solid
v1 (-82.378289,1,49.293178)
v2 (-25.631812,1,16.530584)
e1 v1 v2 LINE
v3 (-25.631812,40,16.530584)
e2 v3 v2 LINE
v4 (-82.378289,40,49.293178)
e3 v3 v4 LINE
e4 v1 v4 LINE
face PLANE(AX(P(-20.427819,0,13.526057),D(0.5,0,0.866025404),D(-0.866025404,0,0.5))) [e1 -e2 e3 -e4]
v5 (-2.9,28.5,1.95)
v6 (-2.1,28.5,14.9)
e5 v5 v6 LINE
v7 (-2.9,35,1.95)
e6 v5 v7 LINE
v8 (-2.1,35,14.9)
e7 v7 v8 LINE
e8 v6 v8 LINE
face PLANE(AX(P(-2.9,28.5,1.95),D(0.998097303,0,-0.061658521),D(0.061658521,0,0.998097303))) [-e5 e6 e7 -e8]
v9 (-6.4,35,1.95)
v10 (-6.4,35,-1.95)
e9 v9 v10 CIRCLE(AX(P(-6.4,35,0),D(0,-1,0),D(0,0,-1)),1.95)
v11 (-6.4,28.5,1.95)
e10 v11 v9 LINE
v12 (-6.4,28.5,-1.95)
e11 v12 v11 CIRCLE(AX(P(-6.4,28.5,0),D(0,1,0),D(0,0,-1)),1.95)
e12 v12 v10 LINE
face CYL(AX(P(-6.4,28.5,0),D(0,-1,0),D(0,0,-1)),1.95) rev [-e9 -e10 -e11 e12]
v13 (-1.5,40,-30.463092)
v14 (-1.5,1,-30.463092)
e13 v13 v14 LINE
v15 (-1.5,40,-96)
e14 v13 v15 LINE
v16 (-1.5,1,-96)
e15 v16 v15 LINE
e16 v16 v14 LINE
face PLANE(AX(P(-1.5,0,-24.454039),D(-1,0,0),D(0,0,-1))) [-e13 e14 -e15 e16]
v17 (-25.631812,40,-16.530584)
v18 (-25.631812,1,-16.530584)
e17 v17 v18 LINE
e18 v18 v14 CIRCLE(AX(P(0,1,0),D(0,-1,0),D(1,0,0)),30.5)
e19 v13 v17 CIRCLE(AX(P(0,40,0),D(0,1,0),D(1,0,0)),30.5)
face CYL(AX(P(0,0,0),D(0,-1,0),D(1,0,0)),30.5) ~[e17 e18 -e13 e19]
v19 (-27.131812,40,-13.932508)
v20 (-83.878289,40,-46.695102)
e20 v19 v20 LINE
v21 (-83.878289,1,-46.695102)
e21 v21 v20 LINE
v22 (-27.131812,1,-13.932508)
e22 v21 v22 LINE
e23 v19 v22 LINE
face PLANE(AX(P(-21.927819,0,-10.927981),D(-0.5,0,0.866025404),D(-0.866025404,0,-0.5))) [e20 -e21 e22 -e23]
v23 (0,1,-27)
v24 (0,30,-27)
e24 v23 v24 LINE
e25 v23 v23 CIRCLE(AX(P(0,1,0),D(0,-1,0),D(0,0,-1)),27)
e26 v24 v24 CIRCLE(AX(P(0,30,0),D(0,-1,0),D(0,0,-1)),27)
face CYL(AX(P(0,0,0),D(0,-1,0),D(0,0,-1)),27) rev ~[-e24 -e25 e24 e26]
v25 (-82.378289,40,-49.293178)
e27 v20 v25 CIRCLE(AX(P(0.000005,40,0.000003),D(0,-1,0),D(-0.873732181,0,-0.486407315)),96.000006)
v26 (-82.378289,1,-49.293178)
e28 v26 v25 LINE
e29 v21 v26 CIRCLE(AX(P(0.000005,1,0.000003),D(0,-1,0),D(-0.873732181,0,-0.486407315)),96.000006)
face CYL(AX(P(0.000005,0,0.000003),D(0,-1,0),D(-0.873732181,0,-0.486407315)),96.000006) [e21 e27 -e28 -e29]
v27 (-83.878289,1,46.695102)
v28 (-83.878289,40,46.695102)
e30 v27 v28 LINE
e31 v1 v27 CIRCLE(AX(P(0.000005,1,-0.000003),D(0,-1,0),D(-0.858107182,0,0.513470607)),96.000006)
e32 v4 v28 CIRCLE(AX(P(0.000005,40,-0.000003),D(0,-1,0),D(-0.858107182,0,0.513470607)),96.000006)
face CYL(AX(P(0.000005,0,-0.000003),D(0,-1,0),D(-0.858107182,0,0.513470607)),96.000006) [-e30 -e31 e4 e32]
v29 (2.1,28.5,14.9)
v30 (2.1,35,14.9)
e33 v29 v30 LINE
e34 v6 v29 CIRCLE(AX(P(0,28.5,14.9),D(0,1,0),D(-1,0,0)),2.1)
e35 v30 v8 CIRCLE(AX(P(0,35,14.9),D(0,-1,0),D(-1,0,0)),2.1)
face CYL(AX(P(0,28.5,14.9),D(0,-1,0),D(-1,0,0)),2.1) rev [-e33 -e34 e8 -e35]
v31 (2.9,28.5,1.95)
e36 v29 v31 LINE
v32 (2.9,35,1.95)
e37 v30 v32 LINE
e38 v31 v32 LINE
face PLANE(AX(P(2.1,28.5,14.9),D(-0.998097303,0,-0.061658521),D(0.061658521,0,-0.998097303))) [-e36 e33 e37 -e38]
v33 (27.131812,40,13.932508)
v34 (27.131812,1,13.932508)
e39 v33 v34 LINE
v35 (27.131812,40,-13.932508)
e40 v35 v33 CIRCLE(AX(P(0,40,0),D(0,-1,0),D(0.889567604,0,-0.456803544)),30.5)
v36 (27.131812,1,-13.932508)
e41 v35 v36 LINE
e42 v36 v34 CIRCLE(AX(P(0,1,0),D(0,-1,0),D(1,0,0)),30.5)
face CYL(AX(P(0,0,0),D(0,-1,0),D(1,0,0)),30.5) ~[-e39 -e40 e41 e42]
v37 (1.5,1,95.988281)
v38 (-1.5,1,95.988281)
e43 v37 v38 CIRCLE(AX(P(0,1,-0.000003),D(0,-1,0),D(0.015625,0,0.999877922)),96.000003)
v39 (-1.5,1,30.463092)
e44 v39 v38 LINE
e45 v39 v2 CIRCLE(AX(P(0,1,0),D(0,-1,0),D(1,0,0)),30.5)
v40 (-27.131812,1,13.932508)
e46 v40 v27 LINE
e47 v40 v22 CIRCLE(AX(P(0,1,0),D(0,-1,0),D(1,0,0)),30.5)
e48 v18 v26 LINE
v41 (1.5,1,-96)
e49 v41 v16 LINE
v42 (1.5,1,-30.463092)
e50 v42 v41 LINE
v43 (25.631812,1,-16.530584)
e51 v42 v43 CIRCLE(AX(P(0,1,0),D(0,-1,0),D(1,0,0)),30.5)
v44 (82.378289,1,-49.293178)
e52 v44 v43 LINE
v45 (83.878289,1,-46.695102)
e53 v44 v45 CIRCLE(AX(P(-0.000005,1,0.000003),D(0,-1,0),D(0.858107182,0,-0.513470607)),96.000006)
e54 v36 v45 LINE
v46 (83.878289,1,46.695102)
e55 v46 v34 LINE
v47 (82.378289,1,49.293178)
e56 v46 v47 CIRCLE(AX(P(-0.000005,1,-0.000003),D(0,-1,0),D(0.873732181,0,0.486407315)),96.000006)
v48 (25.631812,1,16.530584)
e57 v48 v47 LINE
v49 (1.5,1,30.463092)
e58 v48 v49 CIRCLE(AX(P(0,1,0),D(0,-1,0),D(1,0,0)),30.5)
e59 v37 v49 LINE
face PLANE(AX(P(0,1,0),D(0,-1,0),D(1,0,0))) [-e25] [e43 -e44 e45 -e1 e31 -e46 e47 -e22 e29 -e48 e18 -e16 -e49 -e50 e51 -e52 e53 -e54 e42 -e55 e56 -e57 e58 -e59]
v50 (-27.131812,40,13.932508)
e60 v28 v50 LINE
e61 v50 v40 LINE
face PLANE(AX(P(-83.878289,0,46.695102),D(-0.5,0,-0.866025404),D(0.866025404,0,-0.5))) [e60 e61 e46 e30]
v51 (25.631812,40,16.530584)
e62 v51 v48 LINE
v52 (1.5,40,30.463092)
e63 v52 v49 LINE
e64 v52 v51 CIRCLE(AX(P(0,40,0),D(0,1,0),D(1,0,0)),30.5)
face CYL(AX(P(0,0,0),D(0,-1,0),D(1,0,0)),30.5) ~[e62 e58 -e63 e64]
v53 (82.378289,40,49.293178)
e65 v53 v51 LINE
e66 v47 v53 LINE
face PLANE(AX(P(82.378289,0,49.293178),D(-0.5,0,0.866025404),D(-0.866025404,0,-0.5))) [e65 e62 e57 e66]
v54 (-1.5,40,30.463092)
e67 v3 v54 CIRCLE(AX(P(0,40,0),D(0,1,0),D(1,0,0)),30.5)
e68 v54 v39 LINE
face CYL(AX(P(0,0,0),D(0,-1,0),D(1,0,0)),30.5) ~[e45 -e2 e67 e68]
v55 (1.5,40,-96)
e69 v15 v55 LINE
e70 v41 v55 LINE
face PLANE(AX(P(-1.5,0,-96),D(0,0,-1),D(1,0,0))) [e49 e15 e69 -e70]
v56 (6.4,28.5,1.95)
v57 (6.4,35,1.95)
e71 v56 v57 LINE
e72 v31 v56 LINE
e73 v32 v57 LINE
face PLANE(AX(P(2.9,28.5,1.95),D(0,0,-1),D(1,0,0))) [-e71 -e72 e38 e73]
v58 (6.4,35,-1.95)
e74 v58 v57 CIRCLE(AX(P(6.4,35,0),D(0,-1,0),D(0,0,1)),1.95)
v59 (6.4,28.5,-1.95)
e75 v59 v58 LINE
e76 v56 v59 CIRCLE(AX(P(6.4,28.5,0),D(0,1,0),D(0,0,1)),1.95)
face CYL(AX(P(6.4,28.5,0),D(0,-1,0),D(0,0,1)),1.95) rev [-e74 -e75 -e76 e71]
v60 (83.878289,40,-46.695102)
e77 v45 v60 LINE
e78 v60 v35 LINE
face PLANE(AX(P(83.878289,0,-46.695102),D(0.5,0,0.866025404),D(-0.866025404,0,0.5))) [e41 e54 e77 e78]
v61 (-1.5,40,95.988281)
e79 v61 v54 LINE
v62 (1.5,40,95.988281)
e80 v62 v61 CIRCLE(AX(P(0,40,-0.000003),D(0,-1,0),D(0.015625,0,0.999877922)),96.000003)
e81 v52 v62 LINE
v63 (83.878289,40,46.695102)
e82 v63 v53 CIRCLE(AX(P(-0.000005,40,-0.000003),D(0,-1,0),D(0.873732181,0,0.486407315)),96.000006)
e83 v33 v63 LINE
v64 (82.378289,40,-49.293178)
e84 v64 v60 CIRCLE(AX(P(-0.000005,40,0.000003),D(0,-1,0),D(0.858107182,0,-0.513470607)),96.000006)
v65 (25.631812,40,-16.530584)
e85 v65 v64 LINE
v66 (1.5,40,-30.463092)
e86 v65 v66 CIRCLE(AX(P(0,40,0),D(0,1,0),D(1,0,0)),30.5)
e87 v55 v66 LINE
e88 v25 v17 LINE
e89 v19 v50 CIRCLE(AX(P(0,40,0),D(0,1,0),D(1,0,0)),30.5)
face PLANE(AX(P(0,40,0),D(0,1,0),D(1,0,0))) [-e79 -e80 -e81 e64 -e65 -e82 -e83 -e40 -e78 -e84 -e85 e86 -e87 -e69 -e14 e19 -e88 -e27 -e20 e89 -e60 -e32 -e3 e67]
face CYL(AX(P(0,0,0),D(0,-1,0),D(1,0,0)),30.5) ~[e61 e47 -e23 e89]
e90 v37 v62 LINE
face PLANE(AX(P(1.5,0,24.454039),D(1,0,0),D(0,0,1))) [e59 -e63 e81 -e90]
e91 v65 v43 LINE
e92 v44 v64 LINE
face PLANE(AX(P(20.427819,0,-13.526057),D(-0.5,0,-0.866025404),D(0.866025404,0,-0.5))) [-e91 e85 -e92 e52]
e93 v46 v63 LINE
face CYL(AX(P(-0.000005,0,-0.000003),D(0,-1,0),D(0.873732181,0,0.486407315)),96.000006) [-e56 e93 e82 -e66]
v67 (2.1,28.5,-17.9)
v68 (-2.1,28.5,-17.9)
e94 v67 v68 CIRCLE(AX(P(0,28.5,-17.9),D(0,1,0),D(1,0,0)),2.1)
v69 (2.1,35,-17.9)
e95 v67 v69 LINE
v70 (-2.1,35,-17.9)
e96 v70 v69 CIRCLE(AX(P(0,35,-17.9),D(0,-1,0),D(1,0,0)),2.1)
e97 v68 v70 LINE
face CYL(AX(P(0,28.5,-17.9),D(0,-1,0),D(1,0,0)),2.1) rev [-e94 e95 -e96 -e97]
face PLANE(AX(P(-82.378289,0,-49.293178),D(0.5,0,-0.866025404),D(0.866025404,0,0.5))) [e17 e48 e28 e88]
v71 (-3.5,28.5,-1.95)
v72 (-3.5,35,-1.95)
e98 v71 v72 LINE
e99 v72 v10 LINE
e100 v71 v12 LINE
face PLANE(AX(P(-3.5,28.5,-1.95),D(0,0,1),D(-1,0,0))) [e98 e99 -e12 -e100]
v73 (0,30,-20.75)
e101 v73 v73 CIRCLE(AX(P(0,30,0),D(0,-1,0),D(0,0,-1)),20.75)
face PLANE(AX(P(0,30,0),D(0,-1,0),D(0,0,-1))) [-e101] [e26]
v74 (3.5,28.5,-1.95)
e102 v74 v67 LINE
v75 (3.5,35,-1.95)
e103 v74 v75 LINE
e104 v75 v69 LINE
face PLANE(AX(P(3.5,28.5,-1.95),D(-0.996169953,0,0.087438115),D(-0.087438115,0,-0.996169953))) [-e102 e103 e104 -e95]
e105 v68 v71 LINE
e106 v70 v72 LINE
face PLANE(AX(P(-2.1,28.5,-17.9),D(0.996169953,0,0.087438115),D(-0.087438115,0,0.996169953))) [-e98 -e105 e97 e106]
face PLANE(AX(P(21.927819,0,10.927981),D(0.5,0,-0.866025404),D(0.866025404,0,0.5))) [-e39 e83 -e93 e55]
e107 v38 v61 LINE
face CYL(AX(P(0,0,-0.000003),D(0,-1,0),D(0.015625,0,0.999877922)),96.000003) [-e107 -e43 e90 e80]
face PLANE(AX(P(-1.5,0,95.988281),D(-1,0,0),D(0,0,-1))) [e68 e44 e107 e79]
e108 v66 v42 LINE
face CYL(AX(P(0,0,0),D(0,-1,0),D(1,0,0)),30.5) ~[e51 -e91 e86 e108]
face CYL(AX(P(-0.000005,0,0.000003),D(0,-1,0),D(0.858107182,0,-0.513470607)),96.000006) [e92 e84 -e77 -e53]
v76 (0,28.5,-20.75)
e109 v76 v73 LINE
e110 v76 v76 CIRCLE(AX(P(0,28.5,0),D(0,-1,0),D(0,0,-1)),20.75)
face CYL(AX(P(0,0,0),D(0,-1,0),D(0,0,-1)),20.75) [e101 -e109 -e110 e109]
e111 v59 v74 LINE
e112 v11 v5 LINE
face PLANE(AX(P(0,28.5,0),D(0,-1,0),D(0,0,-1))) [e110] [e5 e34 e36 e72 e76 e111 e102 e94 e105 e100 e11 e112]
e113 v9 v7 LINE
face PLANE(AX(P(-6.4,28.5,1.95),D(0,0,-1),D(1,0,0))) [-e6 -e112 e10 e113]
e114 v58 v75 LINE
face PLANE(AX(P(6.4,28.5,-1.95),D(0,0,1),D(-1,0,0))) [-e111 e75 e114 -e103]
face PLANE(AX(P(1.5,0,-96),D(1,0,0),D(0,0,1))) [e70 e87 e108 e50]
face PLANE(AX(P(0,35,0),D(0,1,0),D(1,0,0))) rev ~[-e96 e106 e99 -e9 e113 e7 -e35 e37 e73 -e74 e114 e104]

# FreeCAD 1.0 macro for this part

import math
import FreeCAD as App
import Part
import Sketcher
from FreeCAD import Vector
Q = App.Units.Quantity

doc = App.newDocument("Part")
body = doc.addObject("PartDesign::Body", "Body")

# Sketch on XZ plane
sketch1 = body.newObject("Sketcher::SketchObject", "Sketch")
sketch1.AttachmentSupport = (doc.getObject("XZ_Plane"), [""])
sketch1.MapMode = "FlatFace"
sketch1.addGeometry([
    Part.LineSegment(Vector(20.4, 13.5, 0), Vector(82.4, 49.3, 0)),  # 0
    Part.ArcOfCircle(Part.Circle(Vector(0, 0, 0), Vector(0, 0, 1), 96), math.radians(29.1), math.radians(30.9)),  # 1
    Part.LineSegment(Vector(83.9, 46.7, 0), Vector(21.9, 10.9, 0)),  # 2
    Part.ArcOfCircle(Part.Circle(Vector(0, 0, 0), Vector(0, 0, 1), 24.5), math.radians(-26), math.radians(26)),  # 3
    Part.LineSegment(Vector(21.9, -10.9, 0), Vector(83.9, -46.7, 0)),  # 4
    Part.ArcOfCircle(Part.Circle(Vector(0, 0, 0), Vector(0, 0, 1), 96), math.radians(-30.9), math.radians(-29.1)),  # 5
    Part.LineSegment(Vector(82.4, -49.3, 0), Vector(20.4, -13.5, 0)),  # 6
    Part.ArcOfCircle(Part.Circle(Vector(0, 0, 0), Vector(0, 0, 1), 24.5), math.radians(-86), math.radians(-34)),  # 7
    Part.LineSegment(Vector(1.5, -24.5, 0), Vector(1.5, -96, 0)),  # 8
    Part.LineSegment(Vector(1.5, -96, 0), Vector(-1.5, -96, 0)),  # 9
    Part.LineSegment(Vector(-1.5, -96, 0), Vector(-1.5, -24.5, 0)),  # 10
    Part.ArcOfCircle(Part.Circle(Vector(0, 0, 0), Vector(0, 0, 1), 24.5), math.radians(-146), math.radians(-94)),  # 11
    Part.LineSegment(Vector(-20.4, -13.5, 0), Vector(-82.4, -49.3, 0)),  # 12
    Part.ArcOfCircle(Part.Circle(Vector(0, 0, 0), Vector(0, 0, 1), 96), math.radians(-150.9), math.radians(-149.1)),  # 13
    Part.LineSegment(Vector(-83.9, -46.7, 0), Vector(-21.9, -10.9, 0)),  # 14
    Part.ArcOfCircle(Part.Circle(Vector(0, 0, 0), Vector(0, 0, 1), 24.5), math.radians(154), math.radians(206)),  # 15
    Part.LineSegment(Vector(-21.9, 10.9, 0), Vector(-83.9, 46.7, 0)),  # 16
    Part.ArcOfCircle(Part.Circle(Vector(0, 0, 0), Vector(0, 0, 1), 96), math.radians(149.1), math.radians(150.9)),  # 17
    Part.LineSegment(Vector(-82.4, 49.3, 0), Vector(-20.4, 13.5, 0)),  # 18
    Part.ArcOfCircle(Part.Circle(Vector(0, 0, 0), Vector(0, 0, 1), 24.5), math.radians(94), math.radians(146)),  # 19
    Part.LineSegment(Vector(-1.5, 24.5, 0), Vector(-1.5, 96, 0)),  # 20
    Part.ArcOfCircle(Part.Circle(Vector(0, 0, 0), Vector(0, 0, 1), 96), math.radians(89.1), math.radians(90.9)),  # 21
    Part.LineSegment(Vector(1.5, 96, 0), Vector(1.5, 24.5, 0)),  # 22
    Part.ArcOfCircle(Part.Circle(Vector(0, 0, 0), Vector(0, 0, 1), 24.5), math.radians(34), math.radians(86)),  # 23
    Part.Circle(Vector(0, 0, 0), Vector(0, 0, 1), 20.5),  # 24
], False)
sketch1.addConstraint([
    Sketcher.Constraint("Coincident", 0, 2, 1, 2),
    Sketcher.Constraint("Coincident", 1, 1, 2, 1),
    Sketcher.Constraint("Coincident", 2, 2, 3, 2),
    Sketcher.Constraint("Coincident", 3, 1, 4, 1),
    Sketcher.Constraint("Coincident", 4, 2, 5, 2),
    Sketcher.Constraint("Coincident", 5, 1, 6, 1),
    Sketcher.Constraint("Coincident", 6, 2, 7, 2),
    Sketcher.Constraint("Coincident", 7, 1, 8, 1),
    Sketcher.Constraint("Coincident", 8, 2, 9, 1),
    Sketcher.Constraint("Coincident", 9, 2, 10, 1),
    Sketcher.Constraint("Coincident", 10, 2, 11, 2),
    Sketcher.Constraint("Coincident", 11, 1, 12, 1),
    Sketcher.Constraint("Coincident", 12, 2, 13, 2),
    Sketcher.Constraint("Coincident", 13, 1, 14, 1),
    Sketcher.Constraint("Coincident", 14, 2, 15, 2),
    Sketcher.Constraint("Coincident", 15, 1, 16, 1),
    Sketcher.Constraint("Coincident", 16, 2, 17, 2),
    Sketcher.Constraint("Coincident", 17, 1, 18, 1),
    Sketcher.Constraint("Coincident", 18, 2, 19, 2),
    Sketcher.Constraint("Coincident", 19, 1, 20, 1),
    Sketcher.Constraint("Coincident", 20, 2, 21, 2),
    Sketcher.Constraint("Coincident", 21, 1, 22, 1),
    Sketcher.Constraint("Coincident", 22, 2, 23, 2),
    Sketcher.Constraint("Coincident", 23, 1, 0, 1),
    Sketcher.Constraint("Vertical", 8),
    Sketcher.Constraint("Horizontal", 9),
    Sketcher.Constraint("Vertical", 10),
    Sketcher.Constraint("Vertical", 20),
    Sketcher.Constraint("Vertical", 22),
    Sketcher.Constraint("Coincident", 1, 3, -1, 1),
    Sketcher.Constraint("Coincident", 3, 3, -1, 1),
    Sketcher.Constraint("Coincident", 5, 3, -1, 1),
    Sketcher.Constraint("Coincident", 7, 3, -1, 1),
    Sketcher.Constraint("Coincident", 11, 3, -1, 1),
    Sketcher.Constraint("Coincident", 13, 3, -1, 1),
    Sketcher.Constraint("Coincident", 15, 3, -1, 1),
    Sketcher.Constraint("Coincident", 17, 3, -1, 1),
    Sketcher.Constraint("Coincident", 19, 3, -1, 1),
    Sketcher.Constraint("Coincident", 21, 3, -1, 1),
    Sketcher.Constraint("Coincident", 23, 3, -1, 1),
    Sketcher.Constraint("Coincident", 24, 3, -1, 1),
    Sketcher.Constraint("Equal", 1, 5),
    Sketcher.Constraint("Equal", 3, 7),
    Sketcher.Constraint("Equal", 7, 11),
    Sketcher.Constraint("Equal", 5, 13),
    Sketcher.Constraint("Equal", 11, 15),
    Sketcher.Constraint("Equal", 13, 17),
    Sketcher.Constraint("Equal", 15, 19),
    Sketcher.Constraint("Equal", 19, 23),
    Sketcher.Constraint("Parallel", 0, 2),
    Sketcher.Constraint("Parallel", 4, 6),
    Sketcher.Constraint("Parallel", 2, 12),
    Sketcher.Constraint("Parallel", 12, 14),
    Sketcher.Constraint("Parallel", 6, 16),
    Sketcher.Constraint("Parallel", 16, 18),
    Sketcher.Constraint("Horizontal", 7, 1, 10, 2),
    Sketcher.Constraint("Horizontal", 6, 2, 11, 1),
    Sketcher.Constraint("Horizontal", 5, 1, 12, 2),
    Sketcher.Constraint("Horizontal", 4, 2, 13, 1),
    Sketcher.Constraint("Horizontal", 2, 2, 15, 1),
    Sketcher.Constraint("Horizontal", 0, 2, 17, 1),
    Sketcher.Constraint("Horizontal", 20, 2, 21, 1),
    Sketcher.Constraint("Vertical", 2, 2, 3, 1),
    Sketcher.Constraint("Vertical", 0, 2, 5, 1),
    Sketcher.Constraint("Vertical", 10, 2, 19, 1),
    Sketcher.Constraint("Equal", 0, 2),
    Sketcher.Constraint("Diameter", 24, Q("41 mm")),
    Sketcher.Constraint("Radius", 3, Q("24.5 mm")),
    Sketcher.Constraint("DistanceX", 9, 2, 9, 1, Q("3 mm")),
    Sketcher.Constraint("Angle", 0, Q("30 deg")),
    Sketcher.Constraint("DistanceY", 8, 2, -1, 1, Q("96 mm")),
    Sketcher.Constraint("DistanceX", 0, 2, 1, 1, Q("1.5 mm")),
    Sketcher.Constraint("Radius", 1, Q("96.000006 mm")),
    Sketcher.Constraint("Radius", 21, Q("96.000003 mm")),
])
pad1 = body.newObject("PartDesign::Pad", "Pad")
pad1.Profile = sketch1
pad1.Length = 40
pad1.Reversed = True

# Sketch on XZ plane
sketch2 = body.newObject("Sketcher::SketchObject", "Sketch001")
sketch2.AttachmentSupport = (doc.getObject("XZ_Plane"), [""])
sketch2.MapMode = "FlatFace"
sketch2.addGeometry(Part.Circle(Vector(0, 0, 0), Vector(0, 0, 1), 21), False)
sketch2.addConstraint([
    Sketcher.Constraint("Coincident", 0, 3, -1, 1),
    Sketcher.Constraint("Diameter", 0, Q("42 mm")),
])
pad2 = body.newObject("PartDesign::Pad", "Pad001")
pad2.Profile = sketch2
pad2.Length = 35
pad2.Reversed = True

# Sketch on XZ plane
sketch3 = body.newObject("Sketcher::SketchObject", "Sketch002")
sketch3.AttachmentSupport = (doc.getObject("XZ_Plane"), [""])
sketch3.MapMode = "FlatFace"
sketch3.addGeometry(Part.Circle(Vector(0, 0, 0), Vector(0, 0, 1), 21), False)
sketch3.addConstraint([
    Sketcher.Constraint("Coincident", 0, 3, -1, 1),
    Sketcher.Constraint("Diameter", 0, Q("41.5 mm")),
])
pocket1 = body.newObject("PartDesign::Pocket", "Pocket")
pocket1.Profile = sketch3
pocket1.Length = 28.5

# Sketch on XZ plane
sketch4 = body.newObject("Sketcher::SketchObject", "Sketch003")
sketch4.AttachmentSupport = (doc.getObject("XZ_Plane"), [""])
sketch4.MapMode = "FlatFace"
sketch4.AttachmentOffset = App.Placement(Vector(0, 0, -28.5), App.Rotation())
sketch4.addGeometry([
    Part.LineSegment(Vector(-2.9, 1.9, 0), Vector(-6.4, 1.9, 0)),  # 0
    Part.ArcOfCircle(Part.Circle(Vector(-6.4, 0, 0), Vector(0, 0, 1), 1.9), math.radians(90), math.radians(270)),  # 1
    Part.LineSegment(Vector(-6.4, -1.9, 0), Vector(-3.5, -1.9, 0)),  # 2
    Part.LineSegment(Vector(-3.5, -1.9, 0), Vector(-2.1, -17.9, 0)),  # 3
    Part.ArcOfCircle(Part.Circle(Vector(0, -17.9, 0), Vector(0, 0, 1), 2.1), math.radians(180), math.radians(360)),  # 4
    Part.LineSegment(Vector(2.1, -17.9, 0), Vector(3.5, -1.9, 0)),  # 5
    Part.LineSegment(Vector(3.5, -1.9, 0), Vector(6.4, -1.9, 0)),  # 6
    Part.ArcOfCircle(Part.Circle(Vector(6.4, 0, 0), Vector(0, 0, 1), 1.9), math.radians(-90), math.radians(90)),  # 7
    Part.LineSegment(Vector(6.4, 1.9, 0), Vector(2.9, 1.9, 0)),  # 8
    Part.LineSegment(Vector(2.9, 1.9, 0), Vector(2.1, 14.9, 0)),  # 9
    Part.ArcOfCircle(Part.Circle(Vector(0, 14.9, 0), Vector(0, 0, 1), 2.1), math.radians(0), math.radians(180)),  # 10
    Part.LineSegment(Vector(-2.1, 14.9, 0), Vector(-2.9, 1.9, 0)),  # 11
], False)
sketch4.addConstraint([
    Sketcher.Constraint("Tangent", 0, 2, 1, 1),
    Sketcher.Constraint("Tangent", 1, 2, 2, 1),
    Sketcher.Constraint("Coincident", 2, 2, 3, 1),
    Sketcher.Constraint("Coincident", 3, 2, 4, 1),
    Sketcher.Constraint("Coincident", 4, 2, 5, 1),
    Sketcher.Constraint("Coincident", 5, 2, 6, 1),
    Sketcher.Constraint("Tangent", 6, 2, 7, 1),
    Sketcher.Constraint("Tangent", 7, 2, 8, 1),
    Sketcher.Constraint("Coincident", 8, 2, 9, 1),
    Sketcher.Constraint("Coincident", 9, 2, 10, 1),
    Sketcher.Constraint("Coincident", 10, 2, 11, 1),
    Sketcher.Constraint("Coincident", 11, 2, 0, 1),
    Sketcher.Constraint("Horizontal", 0),
    Sketcher.Constraint("Horizontal", 2),
    Sketcher.Constraint("Horizontal", 6),
    Sketcher.Constraint("Horizontal", 8),
    Sketcher.Constraint("Equal", 1, 7),
    Sketcher.Constraint("Equal", 4, 10),
    Sketcher.Constraint("Symmetric", 1, 3, 7, 3, -1, 1),
    Sketcher.Constraint("Symmetric", 3, 2, 4, 2, -2),
    Sketcher.Constraint("Symmetric", 2, 2, 5, 2, -2),
    Sketcher.Constraint("Symmetric", 9, 2, 10, 2, -2),
    Sketcher.Constraint("Horizontal", 4, 3, 3, 2),
    Sketcher.Constraint("Horizontal", 10, 3, 9, 2),
    Sketcher.Constraint("Equal", 0, 8),
    Sketcher.Constraint("Radius", 4, Q("2.1 mm")),
    Sketcher.Constraint("Radius", 1, Q("1.95 mm")),
    Sketcher.Constraint("DistanceX", 0, 2, 0, 1, Q("3.5 mm")),
    Sketcher.Constraint("DistanceX", 2, 1, 2, 2, Q("2.9 mm")),
    Sketcher.Constraint("DistanceX", 2, 2, 5, 2, Q("7 mm")),
    Sketcher.Constraint("DistanceY", 4, 3, -1, 1, Q("17.9 mm")),
    Sketcher.Constraint("DistanceY", -1, 1, 10, 3, Q("14.9 mm")),
])
pocket2 = body.newObject("PartDesign::Pocket", "Pocket001")
pocket2.Profile = sketch4
pocket2.Length = 17

# Sketch on XZ plane
sketch5 = body.newObject("Sketcher::SketchObject", "Sketch004")
sketch5.AttachmentSupport = (doc.getObject("XZ_Plane"), [""])
sketch5.MapMode = "FlatFace"
sketch5.addGeometry([
    Part.Circle(Vector(0, 0, 0), Vector(0, 0, 1), 30),
    Part.Circle(Vector(0, 0, 0), Vector(0, 0, 1), 24),
], False)
sketch5.addConstraint([
    Sketcher.Constraint("Coincident", 0, 3, -1, 1),
    Sketcher.Constraint("Coincident", 1, 3, -1, 1),
    Sketcher.Constraint("Diameter", 0, Q("61 mm")),
    Sketcher.Constraint("Diameter", 1, Q("49 mm")),
])
pad3 = body.newObject("PartDesign::Pad", "Pad002")
pad3.Profile = sketch5
pad3.Length = 40
pad3.Reversed = True

# Sketch on XZ plane
sketch6 = body.newObject("Sketcher::SketchObject", "Sketch005")
sketch6.AttachmentSupport = (doc.getObject("XZ_Plane"), [""])
sketch6.MapMode = "FlatFace"
sketch6.addGeometry([
    Part.Circle(Vector(0, 0, 0), Vector(0, 0, 1), 27),
    Part.Circle(Vector(0, 0, 0), Vector(0, 0, 1), 21),
], False)
sketch6.addConstraint([
    Sketcher.Constraint("Coincident", 0, 3, -1, 1),
    Sketcher.Constraint("Coincident", 1, 3, -1, 1),
    Sketcher.Constraint("Diameter", 0, Q("54 mm")),
    Sketcher.Constraint("Diameter", 1, Q("41.5 mm")),
])
pocket3 = body.newObject("PartDesign::Pocket", "Pocket002")
pocket3.Profile = sketch6
pocket3.Length = 30

# Sketch on XZ plane
sketch7 = body.newObject("Sketcher::SketchObject", "Sketch006")
sketch7.AttachmentSupport = (doc.getObject("XZ_Plane"), [""])
sketch7.MapMode = "FlatFace"
sketch7.AttachmentOffset = App.Placement(Vector(0, 0, -35), App.Rotation())
sketch7.addGeometry(Part.Circle(Vector(0, 0, 0), Vector(0, 0, 1), 20), False)
sketch7.addConstraint([
    Sketcher.Constraint("Coincident", 0, 3, -1, 1),
    Sketcher.Constraint("Diameter", 0, Q("41 mm")),
])
pad4 = body.newObject("PartDesign::Pad", "Pad003")
pad4.Profile = sketch7
pad4.Length = 5
pad4.Reversed = True

# Sketch on XZ plane
sketch8 = body.newObject("Sketcher::SketchObject", "Sketch007")
sketch8.AttachmentSupport = (doc.getObject("XZ_Plane"), [""])
sketch8.MapMode = "FlatFace"
sketch8.addGeometry(Part.Circle(Vector(0, 0, 0), Vector(0, 0, 1), 155), False)
sketch8.addConstraint([
    Sketcher.Constraint("Coincident", 0, 3, -1, 1),
    Sketcher.Constraint("Diameter", 0, Q("310.100076 mm")),
])
pocket4 = body.newObject("PartDesign::Pocket", "Pocket003")
pocket4.Profile = sketch8
pocket4.Length = 1

doc.recompute()
